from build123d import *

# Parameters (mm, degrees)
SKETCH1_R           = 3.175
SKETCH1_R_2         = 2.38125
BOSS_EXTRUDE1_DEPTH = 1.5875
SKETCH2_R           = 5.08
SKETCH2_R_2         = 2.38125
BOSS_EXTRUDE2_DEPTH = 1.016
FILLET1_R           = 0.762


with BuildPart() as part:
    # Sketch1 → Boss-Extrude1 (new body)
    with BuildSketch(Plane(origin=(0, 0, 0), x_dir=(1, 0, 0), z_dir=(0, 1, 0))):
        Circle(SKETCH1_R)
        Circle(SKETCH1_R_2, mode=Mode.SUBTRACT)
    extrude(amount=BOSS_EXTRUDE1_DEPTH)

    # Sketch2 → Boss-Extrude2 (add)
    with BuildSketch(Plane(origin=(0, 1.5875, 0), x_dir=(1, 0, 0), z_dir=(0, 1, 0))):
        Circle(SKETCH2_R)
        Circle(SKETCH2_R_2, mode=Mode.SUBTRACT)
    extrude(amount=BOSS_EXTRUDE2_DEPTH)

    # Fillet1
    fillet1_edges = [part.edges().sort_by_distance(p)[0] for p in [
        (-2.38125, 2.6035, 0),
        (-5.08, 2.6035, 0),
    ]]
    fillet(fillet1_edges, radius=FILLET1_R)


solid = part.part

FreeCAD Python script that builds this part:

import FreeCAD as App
import Part
import Sketcher

V = App.Vector
Q = App.Units.Quantity


def edges_at(feature, points):
    """Names of the edges that pass closest to the given points."""
    edges = feature.Shape.Edges
    near = lambda p: min(range(len(edges)), key=lambda i: edges[i].distToShape(Part.Vertex(*p))[0])
    return sorted({f"Edge{near(p) + 1}" for p in points})

doc = App.newDocument("Part")
body = doc.addObject("PartDesign::Body", "Body")

# Sketch on XZ plane
sketch1 = body.newObject("Sketcher::SketchObject", "Sketch")
sketch1.AttachmentSupport = (doc.getObject("XZ_Plane"), [""])
sketch1.MapMode = "FlatFace"
sketch1.addGeometry([
    Part.Circle(V(0, 0, 0), V(0, 0, 1), 3.2),
    Part.Circle(V(0, 0, 0), V(0, 0, 1), 2.4),
], False)
sketch1.addConstraint([
    Sketcher.Constraint("Coincident", 0, 3, -1, 1),
    Sketcher.Constraint("Coincident", 1, 3, -1, 1),
    Sketcher.Constraint("Diameter", 0, Q("0.25 in")),
    Sketcher.Constraint("Diameter", 1, Q("0.1875 in")),
])
pad1 = body.newObject("PartDesign::Pad", "Pad")
pad1.Profile = sketch1
pad1.Length = Q("0.0625 in")
pad1.Reversed = True

# Sketch on XZ plane
sketch2 = body.newObject("Sketcher::SketchObject", "Sketch001")
sketch2.AttachmentSupport = (doc.getObject("XZ_Plane"), [""])
sketch2.MapMode = "FlatFace"
sketch2.AttachmentOffset = App.Placement(V(0, 0, -0.0625 * 25.4), App.Rotation())
sketch2.addGeometry([
    Part.Circle(V(0, 0, 0), V(0, 0, 1), 5.1),
    Part.Circle(V(0, 0, 0), V(0, 0, 1), 2.4),
], False)
sketch2.addConstraint([
    Sketcher.Constraint("Coincident", 0, 3, -1, 1),
    Sketcher.Constraint("Coincident", 1, 3, -1, 1),
    Sketcher.Constraint("Diameter", 0, Q("0.4 in")),
    Sketcher.Constraint("Diameter", 1, Q("0.1875 in")),
])
pad2 = body.newObject("PartDesign::Pad", "Pad001")
pad2.Profile = sketch2
pad2.Length = Q("0.04 in")
pad2.Reversed = True
doc.recompute()

fillet = body.newObject("PartDesign::Fillet", "Fillet")
fillet.Base = (pad2, edges_at(pad2, [(-2.381, 2.603, 0), (-5.08, 2.603, 0)]))
fillet.Radius = Q("0.03 in")

doc.recompute()
